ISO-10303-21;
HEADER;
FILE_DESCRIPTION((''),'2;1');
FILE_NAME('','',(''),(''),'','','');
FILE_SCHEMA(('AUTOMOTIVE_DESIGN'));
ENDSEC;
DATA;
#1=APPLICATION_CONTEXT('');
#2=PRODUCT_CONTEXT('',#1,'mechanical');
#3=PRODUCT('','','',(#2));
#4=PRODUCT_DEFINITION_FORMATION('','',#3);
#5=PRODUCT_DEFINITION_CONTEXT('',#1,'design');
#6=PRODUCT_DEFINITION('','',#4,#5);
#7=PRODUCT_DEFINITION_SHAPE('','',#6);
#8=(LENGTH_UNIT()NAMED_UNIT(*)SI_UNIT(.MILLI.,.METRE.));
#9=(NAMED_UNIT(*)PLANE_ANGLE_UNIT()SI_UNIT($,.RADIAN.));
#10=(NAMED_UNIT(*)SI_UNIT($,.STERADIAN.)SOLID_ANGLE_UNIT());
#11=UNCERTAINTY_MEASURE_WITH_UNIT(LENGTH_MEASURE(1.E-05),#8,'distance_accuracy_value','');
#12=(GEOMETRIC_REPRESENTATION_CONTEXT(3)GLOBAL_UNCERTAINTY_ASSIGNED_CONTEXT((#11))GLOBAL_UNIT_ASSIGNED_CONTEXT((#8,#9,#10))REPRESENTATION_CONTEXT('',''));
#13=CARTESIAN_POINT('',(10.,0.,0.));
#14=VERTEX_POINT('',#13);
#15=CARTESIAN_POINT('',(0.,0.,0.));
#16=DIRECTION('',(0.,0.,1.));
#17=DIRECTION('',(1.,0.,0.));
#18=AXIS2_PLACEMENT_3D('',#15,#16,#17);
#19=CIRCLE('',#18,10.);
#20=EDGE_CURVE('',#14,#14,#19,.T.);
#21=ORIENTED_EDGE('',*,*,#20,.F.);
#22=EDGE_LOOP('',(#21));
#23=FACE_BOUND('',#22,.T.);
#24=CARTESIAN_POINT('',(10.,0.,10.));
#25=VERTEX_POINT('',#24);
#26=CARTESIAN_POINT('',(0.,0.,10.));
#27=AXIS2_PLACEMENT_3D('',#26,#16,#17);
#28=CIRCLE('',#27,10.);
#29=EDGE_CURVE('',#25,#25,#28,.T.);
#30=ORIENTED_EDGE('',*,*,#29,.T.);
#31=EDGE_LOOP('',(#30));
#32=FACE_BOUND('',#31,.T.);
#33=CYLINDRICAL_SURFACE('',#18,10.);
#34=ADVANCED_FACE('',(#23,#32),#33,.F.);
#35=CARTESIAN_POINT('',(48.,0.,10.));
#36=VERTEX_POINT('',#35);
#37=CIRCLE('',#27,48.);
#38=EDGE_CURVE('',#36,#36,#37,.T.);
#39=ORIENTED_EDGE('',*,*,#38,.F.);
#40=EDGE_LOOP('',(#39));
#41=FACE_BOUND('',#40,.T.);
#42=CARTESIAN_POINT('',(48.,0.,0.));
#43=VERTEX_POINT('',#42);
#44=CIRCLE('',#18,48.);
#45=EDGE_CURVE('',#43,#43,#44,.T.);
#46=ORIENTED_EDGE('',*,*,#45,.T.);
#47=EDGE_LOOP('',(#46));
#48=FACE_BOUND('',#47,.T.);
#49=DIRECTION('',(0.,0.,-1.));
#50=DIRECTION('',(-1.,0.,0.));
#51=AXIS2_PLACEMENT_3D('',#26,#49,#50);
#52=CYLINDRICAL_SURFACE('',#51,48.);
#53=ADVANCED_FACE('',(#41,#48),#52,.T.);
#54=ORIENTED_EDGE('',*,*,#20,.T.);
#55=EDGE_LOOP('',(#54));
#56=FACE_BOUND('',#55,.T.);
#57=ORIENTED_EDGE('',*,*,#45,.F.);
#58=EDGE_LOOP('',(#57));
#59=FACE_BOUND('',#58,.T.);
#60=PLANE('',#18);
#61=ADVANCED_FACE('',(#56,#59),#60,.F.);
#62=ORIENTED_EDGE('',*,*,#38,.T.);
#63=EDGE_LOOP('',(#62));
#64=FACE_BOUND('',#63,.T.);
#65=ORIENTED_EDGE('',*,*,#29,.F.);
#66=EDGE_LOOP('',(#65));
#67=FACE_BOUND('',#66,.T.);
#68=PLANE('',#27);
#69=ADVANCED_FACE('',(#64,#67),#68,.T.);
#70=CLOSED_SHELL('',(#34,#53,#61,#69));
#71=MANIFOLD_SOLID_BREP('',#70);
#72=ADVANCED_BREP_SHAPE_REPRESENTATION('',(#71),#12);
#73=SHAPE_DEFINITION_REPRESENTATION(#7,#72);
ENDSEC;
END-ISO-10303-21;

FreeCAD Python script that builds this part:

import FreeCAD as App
import Part
import Sketcher

V = App.Vector
Q = App.Units.Quantity

doc = App.newDocument("Part")
body = doc.addObject("PartDesign::Body", "Body")

sketch1 = body.newObject("Sketcher::SketchObject", "Sketch")
sketch1.AttachmentSupport = (doc.getObject("XY_Plane"), [""])
sketch1.MapMode = "FlatFace"
sketch1.addGeometry(Part.Circle(V(0, 0, 0), V(0, 0, 1), 48), False)
sketch1.addConstraint(Sketcher.Constraint("Coincident", 0, 3, -1, 1))
sketch1.addConstraint(Sketcher.Constraint("Diameter", 0, Q("96 mm")))
pad1 = body.newObject("PartDesign::Pad", "Pad")
pad1.Profile = sketch1
pad1.Length = 10

sketch2 = body.newObject("Sketcher::SketchObject", "Sketch001")
sketch2.AttachmentSupport = (doc.getObject("XY_Plane"), [""])
sketch2.MapMode = "FlatFace"
sketch2.AttachmentOffset = App.Placement(V(0, 0, 10), App.Rotation())
sketch2.addGeometry(Part.Circle(V(0, 0, 0), V(0, 0, 1), 10), False)
sketch2.addConstraint(Sketcher.Constraint("Coincident", 0, 3, -1, 1))
sketch2.addConstraint(Sketcher.Constraint("Diameter", 0, Q("20 mm")))
pocket1 = body.newObject("PartDesign::Pocket", "Pocket")
pocket1.Profile = sketch2
pocket1.Length = 10

doc.recompute()
